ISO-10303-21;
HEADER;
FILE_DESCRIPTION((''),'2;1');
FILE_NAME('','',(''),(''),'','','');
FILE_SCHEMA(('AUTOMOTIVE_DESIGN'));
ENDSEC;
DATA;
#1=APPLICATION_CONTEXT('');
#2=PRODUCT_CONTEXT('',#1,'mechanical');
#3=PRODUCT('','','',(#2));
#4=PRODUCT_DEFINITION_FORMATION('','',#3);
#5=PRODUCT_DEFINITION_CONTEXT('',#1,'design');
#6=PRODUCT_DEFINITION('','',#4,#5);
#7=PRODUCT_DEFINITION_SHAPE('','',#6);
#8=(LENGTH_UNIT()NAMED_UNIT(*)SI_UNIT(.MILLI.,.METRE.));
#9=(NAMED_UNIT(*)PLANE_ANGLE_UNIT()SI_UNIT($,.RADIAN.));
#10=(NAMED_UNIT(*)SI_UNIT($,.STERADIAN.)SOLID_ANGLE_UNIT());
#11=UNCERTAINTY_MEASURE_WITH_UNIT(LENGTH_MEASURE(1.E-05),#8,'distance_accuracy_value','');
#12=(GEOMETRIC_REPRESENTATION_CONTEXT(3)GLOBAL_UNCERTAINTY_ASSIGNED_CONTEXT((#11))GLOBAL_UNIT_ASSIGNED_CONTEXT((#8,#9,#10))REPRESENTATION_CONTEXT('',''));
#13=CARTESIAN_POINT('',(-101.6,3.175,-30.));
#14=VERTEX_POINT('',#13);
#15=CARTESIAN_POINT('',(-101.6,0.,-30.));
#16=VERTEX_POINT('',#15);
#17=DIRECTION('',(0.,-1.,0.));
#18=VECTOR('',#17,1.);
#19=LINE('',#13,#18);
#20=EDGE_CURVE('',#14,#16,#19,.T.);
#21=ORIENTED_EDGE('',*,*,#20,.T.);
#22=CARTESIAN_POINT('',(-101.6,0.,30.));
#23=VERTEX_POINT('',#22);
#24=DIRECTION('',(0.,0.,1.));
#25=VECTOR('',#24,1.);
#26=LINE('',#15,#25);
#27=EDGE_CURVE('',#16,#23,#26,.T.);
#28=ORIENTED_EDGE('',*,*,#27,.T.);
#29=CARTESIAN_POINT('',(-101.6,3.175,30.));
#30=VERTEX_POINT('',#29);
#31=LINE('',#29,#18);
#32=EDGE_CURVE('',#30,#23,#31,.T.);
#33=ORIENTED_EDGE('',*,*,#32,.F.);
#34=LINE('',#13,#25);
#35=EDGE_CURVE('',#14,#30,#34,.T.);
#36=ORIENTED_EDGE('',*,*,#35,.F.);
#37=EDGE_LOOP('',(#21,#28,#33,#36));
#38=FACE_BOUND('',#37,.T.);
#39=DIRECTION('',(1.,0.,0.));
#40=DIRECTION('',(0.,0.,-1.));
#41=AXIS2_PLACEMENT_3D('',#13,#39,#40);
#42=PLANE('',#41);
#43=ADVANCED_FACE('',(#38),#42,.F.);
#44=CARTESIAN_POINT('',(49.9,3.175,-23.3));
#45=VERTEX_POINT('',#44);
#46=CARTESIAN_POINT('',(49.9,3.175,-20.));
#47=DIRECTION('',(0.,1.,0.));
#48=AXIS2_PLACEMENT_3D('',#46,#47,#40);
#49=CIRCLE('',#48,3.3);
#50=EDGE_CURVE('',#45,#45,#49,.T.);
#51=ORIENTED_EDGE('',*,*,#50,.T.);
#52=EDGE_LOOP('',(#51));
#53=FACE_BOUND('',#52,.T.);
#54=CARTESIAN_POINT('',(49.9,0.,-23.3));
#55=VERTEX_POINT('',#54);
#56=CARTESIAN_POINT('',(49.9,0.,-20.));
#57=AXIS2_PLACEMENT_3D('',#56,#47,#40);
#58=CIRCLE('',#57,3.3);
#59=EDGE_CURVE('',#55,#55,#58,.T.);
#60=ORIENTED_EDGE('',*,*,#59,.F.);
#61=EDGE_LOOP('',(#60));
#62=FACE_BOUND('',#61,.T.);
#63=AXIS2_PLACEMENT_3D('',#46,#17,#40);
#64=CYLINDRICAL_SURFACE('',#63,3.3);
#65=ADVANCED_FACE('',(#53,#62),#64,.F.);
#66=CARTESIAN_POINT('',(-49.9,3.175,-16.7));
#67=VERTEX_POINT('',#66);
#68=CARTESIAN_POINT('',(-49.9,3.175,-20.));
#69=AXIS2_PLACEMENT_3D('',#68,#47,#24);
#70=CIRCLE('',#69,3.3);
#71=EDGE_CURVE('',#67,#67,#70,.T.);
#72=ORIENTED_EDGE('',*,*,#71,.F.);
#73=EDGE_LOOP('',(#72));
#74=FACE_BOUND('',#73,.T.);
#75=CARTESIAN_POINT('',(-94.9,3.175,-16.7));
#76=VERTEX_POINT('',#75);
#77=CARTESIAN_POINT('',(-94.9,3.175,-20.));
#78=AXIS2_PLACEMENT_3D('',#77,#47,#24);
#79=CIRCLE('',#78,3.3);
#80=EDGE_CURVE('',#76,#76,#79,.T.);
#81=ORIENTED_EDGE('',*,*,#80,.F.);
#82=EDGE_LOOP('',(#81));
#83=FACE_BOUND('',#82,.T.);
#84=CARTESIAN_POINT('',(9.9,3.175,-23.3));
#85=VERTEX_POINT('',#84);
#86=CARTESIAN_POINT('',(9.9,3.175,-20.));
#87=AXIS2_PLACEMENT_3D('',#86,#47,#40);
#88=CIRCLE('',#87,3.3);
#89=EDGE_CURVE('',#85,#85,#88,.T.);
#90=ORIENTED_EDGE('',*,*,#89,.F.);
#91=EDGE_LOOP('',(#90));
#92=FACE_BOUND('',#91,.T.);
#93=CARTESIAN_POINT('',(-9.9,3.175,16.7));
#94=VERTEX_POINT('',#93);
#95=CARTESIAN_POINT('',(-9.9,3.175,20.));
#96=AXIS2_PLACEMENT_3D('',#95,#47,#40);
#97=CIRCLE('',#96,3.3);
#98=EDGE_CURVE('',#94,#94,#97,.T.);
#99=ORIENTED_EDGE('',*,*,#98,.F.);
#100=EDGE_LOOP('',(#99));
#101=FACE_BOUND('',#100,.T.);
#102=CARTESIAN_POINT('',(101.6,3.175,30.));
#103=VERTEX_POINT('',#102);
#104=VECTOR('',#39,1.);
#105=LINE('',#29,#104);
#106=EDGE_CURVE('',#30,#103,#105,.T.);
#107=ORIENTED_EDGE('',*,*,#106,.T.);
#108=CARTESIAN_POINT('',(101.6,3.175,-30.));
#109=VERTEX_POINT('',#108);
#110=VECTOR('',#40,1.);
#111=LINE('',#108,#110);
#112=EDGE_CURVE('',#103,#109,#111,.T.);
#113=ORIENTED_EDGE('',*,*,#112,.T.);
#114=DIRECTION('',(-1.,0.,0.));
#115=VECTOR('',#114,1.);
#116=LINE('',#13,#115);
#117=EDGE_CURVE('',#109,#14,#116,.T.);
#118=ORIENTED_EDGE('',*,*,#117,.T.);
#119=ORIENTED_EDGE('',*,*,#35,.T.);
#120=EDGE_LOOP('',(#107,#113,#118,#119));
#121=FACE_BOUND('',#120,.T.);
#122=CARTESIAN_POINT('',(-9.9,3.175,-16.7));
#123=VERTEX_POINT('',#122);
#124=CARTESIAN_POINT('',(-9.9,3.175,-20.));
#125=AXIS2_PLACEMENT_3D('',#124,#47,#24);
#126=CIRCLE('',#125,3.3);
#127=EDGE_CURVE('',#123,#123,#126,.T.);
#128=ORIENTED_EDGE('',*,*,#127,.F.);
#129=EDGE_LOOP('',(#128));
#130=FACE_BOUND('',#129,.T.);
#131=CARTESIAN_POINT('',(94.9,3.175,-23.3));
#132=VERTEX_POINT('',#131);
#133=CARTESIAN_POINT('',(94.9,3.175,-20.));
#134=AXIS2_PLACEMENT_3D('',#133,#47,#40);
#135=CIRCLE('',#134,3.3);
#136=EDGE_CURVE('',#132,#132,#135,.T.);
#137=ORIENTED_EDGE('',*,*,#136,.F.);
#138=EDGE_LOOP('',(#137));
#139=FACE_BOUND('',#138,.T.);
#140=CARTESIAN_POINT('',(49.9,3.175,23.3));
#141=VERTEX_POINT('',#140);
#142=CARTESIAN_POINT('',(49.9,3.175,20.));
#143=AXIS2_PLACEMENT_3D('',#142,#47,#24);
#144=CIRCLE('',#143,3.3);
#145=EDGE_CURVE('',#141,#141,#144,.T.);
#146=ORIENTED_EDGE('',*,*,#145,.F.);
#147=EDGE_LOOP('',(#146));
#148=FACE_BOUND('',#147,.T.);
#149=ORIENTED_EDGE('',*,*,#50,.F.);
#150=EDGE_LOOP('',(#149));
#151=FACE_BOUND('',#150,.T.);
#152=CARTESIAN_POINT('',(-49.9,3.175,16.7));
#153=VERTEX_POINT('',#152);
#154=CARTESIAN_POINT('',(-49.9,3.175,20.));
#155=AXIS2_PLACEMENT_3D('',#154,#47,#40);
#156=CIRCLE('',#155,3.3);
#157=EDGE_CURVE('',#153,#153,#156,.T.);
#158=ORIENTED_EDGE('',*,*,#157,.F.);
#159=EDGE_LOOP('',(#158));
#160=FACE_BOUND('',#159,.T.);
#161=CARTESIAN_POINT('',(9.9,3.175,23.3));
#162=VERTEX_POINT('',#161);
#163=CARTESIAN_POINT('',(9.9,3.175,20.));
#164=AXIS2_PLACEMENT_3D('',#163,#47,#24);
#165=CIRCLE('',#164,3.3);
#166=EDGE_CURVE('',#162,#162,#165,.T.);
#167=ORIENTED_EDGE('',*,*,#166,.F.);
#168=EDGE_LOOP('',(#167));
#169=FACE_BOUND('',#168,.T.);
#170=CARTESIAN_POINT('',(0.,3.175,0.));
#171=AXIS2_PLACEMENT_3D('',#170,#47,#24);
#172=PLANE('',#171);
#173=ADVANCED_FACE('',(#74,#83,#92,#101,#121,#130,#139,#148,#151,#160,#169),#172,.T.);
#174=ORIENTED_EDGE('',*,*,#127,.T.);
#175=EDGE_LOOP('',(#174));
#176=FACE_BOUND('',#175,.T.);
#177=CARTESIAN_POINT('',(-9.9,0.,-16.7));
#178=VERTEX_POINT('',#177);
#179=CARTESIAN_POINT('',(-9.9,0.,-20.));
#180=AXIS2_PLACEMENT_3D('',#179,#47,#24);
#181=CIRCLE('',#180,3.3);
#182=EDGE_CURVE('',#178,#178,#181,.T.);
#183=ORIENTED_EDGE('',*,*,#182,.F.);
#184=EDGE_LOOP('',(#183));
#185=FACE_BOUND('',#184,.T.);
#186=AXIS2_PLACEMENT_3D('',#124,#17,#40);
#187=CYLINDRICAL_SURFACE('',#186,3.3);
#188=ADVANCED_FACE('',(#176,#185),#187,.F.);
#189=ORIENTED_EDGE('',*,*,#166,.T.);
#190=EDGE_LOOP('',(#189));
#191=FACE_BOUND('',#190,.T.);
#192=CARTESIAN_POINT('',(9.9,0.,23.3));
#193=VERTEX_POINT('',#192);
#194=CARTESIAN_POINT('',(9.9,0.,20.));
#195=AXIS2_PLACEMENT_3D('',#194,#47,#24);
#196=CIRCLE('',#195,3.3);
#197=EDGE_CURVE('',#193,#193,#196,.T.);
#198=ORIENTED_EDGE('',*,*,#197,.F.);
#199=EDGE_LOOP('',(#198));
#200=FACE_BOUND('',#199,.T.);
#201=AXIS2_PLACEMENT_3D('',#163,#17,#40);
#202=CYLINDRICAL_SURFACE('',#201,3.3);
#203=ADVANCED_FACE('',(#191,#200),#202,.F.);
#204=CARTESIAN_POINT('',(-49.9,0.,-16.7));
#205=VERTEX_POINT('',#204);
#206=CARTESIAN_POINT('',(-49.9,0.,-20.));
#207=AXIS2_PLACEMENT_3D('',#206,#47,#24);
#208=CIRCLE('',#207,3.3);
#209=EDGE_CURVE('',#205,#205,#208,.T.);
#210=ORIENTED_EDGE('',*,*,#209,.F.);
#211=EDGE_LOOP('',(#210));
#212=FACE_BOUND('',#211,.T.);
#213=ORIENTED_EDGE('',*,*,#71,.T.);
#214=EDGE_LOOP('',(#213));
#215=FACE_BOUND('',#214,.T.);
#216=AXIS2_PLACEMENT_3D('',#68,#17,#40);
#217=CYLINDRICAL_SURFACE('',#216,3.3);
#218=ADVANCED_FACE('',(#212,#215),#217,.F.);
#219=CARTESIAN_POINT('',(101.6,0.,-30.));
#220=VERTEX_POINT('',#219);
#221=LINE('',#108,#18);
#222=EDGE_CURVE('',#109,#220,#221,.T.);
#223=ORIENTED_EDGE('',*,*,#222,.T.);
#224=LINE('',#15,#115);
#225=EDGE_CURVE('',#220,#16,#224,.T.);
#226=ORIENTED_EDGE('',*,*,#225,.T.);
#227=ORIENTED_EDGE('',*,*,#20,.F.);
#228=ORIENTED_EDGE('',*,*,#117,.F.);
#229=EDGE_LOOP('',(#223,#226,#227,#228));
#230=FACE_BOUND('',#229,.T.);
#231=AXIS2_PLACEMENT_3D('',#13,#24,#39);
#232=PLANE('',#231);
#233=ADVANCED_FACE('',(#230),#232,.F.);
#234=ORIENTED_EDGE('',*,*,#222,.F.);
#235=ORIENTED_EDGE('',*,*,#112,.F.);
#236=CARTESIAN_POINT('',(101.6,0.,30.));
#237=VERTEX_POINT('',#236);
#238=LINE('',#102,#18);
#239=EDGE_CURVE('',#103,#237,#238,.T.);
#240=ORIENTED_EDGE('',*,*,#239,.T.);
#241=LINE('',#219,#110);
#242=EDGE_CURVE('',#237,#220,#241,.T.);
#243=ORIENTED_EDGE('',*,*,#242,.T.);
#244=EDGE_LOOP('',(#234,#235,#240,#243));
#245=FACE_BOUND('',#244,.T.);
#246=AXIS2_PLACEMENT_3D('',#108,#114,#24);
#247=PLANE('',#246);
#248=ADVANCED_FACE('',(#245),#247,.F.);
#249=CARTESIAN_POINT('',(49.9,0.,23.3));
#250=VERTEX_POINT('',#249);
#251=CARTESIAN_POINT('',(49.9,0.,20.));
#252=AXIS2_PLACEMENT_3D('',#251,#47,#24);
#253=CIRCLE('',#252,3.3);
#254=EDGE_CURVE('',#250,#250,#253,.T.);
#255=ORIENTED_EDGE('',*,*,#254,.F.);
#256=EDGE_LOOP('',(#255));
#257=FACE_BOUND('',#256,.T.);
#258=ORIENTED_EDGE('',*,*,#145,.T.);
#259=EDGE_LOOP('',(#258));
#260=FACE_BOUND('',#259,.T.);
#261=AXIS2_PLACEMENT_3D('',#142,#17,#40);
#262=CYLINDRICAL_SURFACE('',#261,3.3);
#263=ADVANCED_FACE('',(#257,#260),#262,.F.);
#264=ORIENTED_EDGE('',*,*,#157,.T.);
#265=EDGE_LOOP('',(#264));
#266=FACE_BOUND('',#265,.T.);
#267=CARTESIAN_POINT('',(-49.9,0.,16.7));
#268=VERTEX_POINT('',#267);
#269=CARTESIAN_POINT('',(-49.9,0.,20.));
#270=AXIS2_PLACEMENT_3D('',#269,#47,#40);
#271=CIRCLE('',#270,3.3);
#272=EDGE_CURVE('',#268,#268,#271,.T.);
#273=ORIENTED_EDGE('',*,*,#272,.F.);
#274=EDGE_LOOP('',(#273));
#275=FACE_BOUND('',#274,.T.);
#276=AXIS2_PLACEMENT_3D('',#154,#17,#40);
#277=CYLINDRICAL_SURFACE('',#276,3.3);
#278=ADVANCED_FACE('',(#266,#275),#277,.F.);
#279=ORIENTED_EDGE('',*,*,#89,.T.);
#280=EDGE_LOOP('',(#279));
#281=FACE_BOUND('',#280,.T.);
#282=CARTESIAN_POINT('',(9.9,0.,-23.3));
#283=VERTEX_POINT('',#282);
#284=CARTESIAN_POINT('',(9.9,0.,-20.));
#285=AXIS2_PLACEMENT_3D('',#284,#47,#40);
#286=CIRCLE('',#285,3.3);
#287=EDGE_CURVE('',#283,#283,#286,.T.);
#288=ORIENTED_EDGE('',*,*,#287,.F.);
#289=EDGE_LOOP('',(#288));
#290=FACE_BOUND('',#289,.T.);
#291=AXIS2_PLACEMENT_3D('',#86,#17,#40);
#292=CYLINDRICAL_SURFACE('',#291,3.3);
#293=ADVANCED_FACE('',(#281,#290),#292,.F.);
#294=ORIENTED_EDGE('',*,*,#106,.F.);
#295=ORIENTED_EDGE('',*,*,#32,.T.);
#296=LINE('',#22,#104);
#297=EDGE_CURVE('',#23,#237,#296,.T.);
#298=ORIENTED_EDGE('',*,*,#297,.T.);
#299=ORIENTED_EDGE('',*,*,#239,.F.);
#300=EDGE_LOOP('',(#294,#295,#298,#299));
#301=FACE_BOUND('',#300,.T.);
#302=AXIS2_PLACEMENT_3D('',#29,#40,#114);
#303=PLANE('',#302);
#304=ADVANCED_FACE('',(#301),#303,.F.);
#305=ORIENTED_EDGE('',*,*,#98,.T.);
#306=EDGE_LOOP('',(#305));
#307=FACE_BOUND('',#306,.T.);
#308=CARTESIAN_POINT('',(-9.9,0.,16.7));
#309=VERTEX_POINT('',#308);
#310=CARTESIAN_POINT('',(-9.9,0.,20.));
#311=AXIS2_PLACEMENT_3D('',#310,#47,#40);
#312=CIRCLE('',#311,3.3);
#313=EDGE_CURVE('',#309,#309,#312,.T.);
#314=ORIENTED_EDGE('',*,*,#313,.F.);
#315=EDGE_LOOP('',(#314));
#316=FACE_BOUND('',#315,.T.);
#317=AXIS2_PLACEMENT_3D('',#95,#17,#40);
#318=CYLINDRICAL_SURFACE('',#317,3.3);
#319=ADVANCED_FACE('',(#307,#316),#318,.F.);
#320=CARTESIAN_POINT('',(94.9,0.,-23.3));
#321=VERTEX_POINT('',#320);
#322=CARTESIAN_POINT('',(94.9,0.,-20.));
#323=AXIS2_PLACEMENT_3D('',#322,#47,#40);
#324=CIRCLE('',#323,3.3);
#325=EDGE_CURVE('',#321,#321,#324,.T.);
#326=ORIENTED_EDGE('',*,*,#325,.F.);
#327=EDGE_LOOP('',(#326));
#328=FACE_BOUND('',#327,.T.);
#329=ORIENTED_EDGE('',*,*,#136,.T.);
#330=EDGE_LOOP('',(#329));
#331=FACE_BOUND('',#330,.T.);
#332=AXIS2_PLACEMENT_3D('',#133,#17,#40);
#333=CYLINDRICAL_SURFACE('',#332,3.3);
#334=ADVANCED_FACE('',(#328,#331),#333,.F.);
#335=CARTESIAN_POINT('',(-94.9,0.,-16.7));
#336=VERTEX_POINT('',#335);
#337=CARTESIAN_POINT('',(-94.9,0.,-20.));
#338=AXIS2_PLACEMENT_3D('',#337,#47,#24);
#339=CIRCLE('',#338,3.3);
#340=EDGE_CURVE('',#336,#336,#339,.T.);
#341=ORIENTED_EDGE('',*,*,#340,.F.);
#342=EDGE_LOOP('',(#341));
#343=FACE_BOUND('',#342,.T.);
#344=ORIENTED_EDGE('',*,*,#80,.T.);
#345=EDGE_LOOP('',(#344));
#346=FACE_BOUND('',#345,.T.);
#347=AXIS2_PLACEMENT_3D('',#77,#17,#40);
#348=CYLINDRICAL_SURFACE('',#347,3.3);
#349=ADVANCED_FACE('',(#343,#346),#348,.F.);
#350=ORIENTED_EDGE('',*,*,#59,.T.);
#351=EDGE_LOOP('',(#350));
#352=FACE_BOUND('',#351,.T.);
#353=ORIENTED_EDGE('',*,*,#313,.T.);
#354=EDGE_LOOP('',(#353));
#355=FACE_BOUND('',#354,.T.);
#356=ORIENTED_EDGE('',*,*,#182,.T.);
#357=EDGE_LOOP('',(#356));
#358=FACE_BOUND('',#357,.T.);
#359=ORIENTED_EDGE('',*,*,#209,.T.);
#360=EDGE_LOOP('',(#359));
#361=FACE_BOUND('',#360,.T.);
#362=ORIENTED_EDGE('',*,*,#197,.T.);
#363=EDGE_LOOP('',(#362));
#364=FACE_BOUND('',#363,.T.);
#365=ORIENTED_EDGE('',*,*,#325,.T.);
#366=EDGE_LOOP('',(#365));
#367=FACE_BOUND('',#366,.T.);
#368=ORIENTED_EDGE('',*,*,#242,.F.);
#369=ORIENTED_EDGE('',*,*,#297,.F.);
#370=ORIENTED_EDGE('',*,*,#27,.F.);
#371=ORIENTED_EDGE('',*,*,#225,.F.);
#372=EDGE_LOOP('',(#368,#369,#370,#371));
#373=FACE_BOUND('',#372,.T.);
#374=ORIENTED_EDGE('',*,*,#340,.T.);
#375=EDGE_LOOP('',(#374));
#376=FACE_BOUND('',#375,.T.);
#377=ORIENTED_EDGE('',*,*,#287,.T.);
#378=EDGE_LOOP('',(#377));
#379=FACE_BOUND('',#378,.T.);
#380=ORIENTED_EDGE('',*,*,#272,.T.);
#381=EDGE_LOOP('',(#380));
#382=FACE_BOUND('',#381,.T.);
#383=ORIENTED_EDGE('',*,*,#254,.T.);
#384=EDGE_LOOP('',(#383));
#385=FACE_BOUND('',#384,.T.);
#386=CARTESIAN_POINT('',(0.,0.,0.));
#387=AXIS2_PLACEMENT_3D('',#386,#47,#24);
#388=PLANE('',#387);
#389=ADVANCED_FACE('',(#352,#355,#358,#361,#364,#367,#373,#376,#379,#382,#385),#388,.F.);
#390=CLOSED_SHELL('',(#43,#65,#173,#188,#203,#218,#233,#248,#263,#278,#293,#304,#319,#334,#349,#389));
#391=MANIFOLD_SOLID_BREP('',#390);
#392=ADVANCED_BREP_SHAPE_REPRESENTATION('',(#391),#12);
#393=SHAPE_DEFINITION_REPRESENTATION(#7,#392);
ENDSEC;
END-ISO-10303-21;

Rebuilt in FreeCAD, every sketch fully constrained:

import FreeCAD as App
import Part
import Sketcher
Q = App.Units.Quantity

doc = App.newDocument("Part")
body = doc.addObject("PartDesign::Body", "Body")

# Sketch on XZ plane
sketch1 = body.newObject("Sketcher::SketchObject", "Sketch")
sketch1.AttachmentSupport = (doc.getObject("XZ_Plane"), [""])
sketch1.MapMode = "FlatFace"
sketch1.addGeometry(Part.LineSegment(App.Vector(-101.6, -30, 0), App.Vector(-101.6, 30, 0)), False)
sketch1.addGeometry(Part.LineSegment(App.Vector(-101.6, 30, 0), App.Vector(101.6, 30, 0)), False)
sketch1.addGeometry(Part.LineSegment(App.Vector(101.6, 30, 0), App.Vector(101.6, -30, 0)), False)
sketch1.addGeometry(Part.LineSegment(App.Vector(101.6, -30, 0), App.Vector(-101.6, -30, 0)), False)
sketch1.addGeometry(Part.Circle(App.Vector(-49.9, 20, 0), App.Vector(0, 0, 1), 3.3), False)
sketch1.addGeometry(Part.Circle(App.Vector(-9.9, 20, 0), App.Vector(0, 0, 1), 3.3), False)
sketch1.addGeometry(Part.Circle(App.Vector(9.9, 20, 0), App.Vector(0, 0, 1), 3.3), False)
sketch1.addGeometry(Part.Circle(App.Vector(49.9, 20, 0), App.Vector(0, 0, 1), 3.3), False)
sketch1.addGeometry(Part.Circle(App.Vector(-94.9, -20, 0), App.Vector(0, 0, 1), 3.3), False)
sketch1.addGeometry(Part.Circle(App.Vector(-49.9, -20, 0), App.Vector(0, 0, 1), 3.3), False)
sketch1.addGeometry(Part.Circle(App.Vector(-9.9, -20, 0), App.Vector(0, 0, 1), 3.3), False)
sketch1.addGeometry(Part.Circle(App.Vector(9.9, -20, 0), App.Vector(0, 0, 1), 3.3), False)
sketch1.addGeometry(Part.Circle(App.Vector(49.9, -20, 0), App.Vector(0, 0, 1), 3.3), False)
sketch1.addGeometry(Part.Circle(App.Vector(94.9, -20, 0), App.Vector(0, 0, 1), 3.3), False)
sketch1.addConstraint(Sketcher.Constraint("Coincident", 0, 2, 1, 1))
sketch1.addConstraint(Sketcher.Constraint("Coincident", 1, 2, 2, 1))
sketch1.addConstraint(Sketcher.Constraint("Coincident", 2, 2, 3, 1))
sketch1.addConstraint(Sketcher.Constraint("Coincident", 3, 2, 0, 1))
sketch1.addConstraint(Sketcher.Constraint("Vertical", 0))
sketch1.addConstraint(Sketcher.Constraint("Horizontal", 1))
sketch1.addConstraint(Sketcher.Constraint("Vertical", 2))
sketch1.addConstraint(Sketcher.Constraint("Horizontal", 3))
sketch1.addConstraint(Sketcher.Constraint("Equal", 4, 5))
sketch1.addConstraint(Sketcher.Constraint("Equal", 5, 6))
sketch1.addConstraint(Sketcher.Constraint("Equal", 6, 7))
sketch1.addConstraint(Sketcher.Constraint("Equal", 7, 8))
sketch1.addConstraint(Sketcher.Constraint("Equal", 8, 9))
sketch1.addConstraint(Sketcher.Constraint("Equal", 9, 10))
sketch1.addConstraint(Sketcher.Constraint("Equal", 10, 11))
sketch1.addConstraint(Sketcher.Constraint("Equal", 11, 12))
sketch1.addConstraint(Sketcher.Constraint("Equal", 12, 13))
sketch1.addConstraint(Sketcher.Constraint("Symmetric", 7, 3, 9, 3, -1, 1))
sketch1.addConstraint(Sketcher.Constraint("Symmetric", 6, 3, 10, 3, -1, 1))
sketch1.addConstraint(Sketcher.Constraint("Symmetric", 5, 3, 11, 3, -1, 1))
sketch1.addConstraint(Sketcher.Constraint("Symmetric", 4, 3, 12, 3, -1, 1))
sketch1.addConstraint(Sketcher.Constraint("Symmetric", 0, 2, 2, 2, -1, 1))
sketch1.addConstraint(Sketcher.Constraint("Symmetric", 5, 3, 6, 3, -2))
sketch1.addConstraint(Sketcher.Constraint("Symmetric", 4, 3, 7, 3, -2))
sketch1.addConstraint(Sketcher.Constraint("Symmetric", 8, 3, 13, 3, -2))
sketch1.addConstraint(Sketcher.Constraint("Horizontal", 4, 3, 5, 3))
sketch1.addConstraint(Sketcher.Constraint("Horizontal", 8, 3, 9, 3))
sketch1.addConstraint(Sketcher.Constraint("Diameter", 4, Q("6.6 mm")))
sketch1.addConstraint(Sketcher.Constraint("DistanceY", 0, 1, 0, 2, Q("60 mm")))
sketch1.addConstraint(Sketcher.Constraint("DistanceX", 1, 1, 1, 2, Q("203.2 mm")))
sketch1.addConstraint(Sketcher.Constraint("DistanceY", -1, 1, 4, 3, Q("20 mm")))
sketch1.addConstraint(Sketcher.Constraint("DistanceX", 4, 3, 5, 3, Q("40 mm")))
sketch1.addConstraint(Sketcher.Constraint("DistanceX", 8, 3, 4, 3, Q("45 mm")))
sketch1.addConstraint(Sketcher.Constraint("DistanceX", 4, 3, -1, 1, Q("49.9 mm")))
pad1 = body.newObject("PartDesign::Pad", "Pad")
pad1.Profile = sketch1
pad1.Length = 3.175
pad1.Reversed = True

doc.recompute()
